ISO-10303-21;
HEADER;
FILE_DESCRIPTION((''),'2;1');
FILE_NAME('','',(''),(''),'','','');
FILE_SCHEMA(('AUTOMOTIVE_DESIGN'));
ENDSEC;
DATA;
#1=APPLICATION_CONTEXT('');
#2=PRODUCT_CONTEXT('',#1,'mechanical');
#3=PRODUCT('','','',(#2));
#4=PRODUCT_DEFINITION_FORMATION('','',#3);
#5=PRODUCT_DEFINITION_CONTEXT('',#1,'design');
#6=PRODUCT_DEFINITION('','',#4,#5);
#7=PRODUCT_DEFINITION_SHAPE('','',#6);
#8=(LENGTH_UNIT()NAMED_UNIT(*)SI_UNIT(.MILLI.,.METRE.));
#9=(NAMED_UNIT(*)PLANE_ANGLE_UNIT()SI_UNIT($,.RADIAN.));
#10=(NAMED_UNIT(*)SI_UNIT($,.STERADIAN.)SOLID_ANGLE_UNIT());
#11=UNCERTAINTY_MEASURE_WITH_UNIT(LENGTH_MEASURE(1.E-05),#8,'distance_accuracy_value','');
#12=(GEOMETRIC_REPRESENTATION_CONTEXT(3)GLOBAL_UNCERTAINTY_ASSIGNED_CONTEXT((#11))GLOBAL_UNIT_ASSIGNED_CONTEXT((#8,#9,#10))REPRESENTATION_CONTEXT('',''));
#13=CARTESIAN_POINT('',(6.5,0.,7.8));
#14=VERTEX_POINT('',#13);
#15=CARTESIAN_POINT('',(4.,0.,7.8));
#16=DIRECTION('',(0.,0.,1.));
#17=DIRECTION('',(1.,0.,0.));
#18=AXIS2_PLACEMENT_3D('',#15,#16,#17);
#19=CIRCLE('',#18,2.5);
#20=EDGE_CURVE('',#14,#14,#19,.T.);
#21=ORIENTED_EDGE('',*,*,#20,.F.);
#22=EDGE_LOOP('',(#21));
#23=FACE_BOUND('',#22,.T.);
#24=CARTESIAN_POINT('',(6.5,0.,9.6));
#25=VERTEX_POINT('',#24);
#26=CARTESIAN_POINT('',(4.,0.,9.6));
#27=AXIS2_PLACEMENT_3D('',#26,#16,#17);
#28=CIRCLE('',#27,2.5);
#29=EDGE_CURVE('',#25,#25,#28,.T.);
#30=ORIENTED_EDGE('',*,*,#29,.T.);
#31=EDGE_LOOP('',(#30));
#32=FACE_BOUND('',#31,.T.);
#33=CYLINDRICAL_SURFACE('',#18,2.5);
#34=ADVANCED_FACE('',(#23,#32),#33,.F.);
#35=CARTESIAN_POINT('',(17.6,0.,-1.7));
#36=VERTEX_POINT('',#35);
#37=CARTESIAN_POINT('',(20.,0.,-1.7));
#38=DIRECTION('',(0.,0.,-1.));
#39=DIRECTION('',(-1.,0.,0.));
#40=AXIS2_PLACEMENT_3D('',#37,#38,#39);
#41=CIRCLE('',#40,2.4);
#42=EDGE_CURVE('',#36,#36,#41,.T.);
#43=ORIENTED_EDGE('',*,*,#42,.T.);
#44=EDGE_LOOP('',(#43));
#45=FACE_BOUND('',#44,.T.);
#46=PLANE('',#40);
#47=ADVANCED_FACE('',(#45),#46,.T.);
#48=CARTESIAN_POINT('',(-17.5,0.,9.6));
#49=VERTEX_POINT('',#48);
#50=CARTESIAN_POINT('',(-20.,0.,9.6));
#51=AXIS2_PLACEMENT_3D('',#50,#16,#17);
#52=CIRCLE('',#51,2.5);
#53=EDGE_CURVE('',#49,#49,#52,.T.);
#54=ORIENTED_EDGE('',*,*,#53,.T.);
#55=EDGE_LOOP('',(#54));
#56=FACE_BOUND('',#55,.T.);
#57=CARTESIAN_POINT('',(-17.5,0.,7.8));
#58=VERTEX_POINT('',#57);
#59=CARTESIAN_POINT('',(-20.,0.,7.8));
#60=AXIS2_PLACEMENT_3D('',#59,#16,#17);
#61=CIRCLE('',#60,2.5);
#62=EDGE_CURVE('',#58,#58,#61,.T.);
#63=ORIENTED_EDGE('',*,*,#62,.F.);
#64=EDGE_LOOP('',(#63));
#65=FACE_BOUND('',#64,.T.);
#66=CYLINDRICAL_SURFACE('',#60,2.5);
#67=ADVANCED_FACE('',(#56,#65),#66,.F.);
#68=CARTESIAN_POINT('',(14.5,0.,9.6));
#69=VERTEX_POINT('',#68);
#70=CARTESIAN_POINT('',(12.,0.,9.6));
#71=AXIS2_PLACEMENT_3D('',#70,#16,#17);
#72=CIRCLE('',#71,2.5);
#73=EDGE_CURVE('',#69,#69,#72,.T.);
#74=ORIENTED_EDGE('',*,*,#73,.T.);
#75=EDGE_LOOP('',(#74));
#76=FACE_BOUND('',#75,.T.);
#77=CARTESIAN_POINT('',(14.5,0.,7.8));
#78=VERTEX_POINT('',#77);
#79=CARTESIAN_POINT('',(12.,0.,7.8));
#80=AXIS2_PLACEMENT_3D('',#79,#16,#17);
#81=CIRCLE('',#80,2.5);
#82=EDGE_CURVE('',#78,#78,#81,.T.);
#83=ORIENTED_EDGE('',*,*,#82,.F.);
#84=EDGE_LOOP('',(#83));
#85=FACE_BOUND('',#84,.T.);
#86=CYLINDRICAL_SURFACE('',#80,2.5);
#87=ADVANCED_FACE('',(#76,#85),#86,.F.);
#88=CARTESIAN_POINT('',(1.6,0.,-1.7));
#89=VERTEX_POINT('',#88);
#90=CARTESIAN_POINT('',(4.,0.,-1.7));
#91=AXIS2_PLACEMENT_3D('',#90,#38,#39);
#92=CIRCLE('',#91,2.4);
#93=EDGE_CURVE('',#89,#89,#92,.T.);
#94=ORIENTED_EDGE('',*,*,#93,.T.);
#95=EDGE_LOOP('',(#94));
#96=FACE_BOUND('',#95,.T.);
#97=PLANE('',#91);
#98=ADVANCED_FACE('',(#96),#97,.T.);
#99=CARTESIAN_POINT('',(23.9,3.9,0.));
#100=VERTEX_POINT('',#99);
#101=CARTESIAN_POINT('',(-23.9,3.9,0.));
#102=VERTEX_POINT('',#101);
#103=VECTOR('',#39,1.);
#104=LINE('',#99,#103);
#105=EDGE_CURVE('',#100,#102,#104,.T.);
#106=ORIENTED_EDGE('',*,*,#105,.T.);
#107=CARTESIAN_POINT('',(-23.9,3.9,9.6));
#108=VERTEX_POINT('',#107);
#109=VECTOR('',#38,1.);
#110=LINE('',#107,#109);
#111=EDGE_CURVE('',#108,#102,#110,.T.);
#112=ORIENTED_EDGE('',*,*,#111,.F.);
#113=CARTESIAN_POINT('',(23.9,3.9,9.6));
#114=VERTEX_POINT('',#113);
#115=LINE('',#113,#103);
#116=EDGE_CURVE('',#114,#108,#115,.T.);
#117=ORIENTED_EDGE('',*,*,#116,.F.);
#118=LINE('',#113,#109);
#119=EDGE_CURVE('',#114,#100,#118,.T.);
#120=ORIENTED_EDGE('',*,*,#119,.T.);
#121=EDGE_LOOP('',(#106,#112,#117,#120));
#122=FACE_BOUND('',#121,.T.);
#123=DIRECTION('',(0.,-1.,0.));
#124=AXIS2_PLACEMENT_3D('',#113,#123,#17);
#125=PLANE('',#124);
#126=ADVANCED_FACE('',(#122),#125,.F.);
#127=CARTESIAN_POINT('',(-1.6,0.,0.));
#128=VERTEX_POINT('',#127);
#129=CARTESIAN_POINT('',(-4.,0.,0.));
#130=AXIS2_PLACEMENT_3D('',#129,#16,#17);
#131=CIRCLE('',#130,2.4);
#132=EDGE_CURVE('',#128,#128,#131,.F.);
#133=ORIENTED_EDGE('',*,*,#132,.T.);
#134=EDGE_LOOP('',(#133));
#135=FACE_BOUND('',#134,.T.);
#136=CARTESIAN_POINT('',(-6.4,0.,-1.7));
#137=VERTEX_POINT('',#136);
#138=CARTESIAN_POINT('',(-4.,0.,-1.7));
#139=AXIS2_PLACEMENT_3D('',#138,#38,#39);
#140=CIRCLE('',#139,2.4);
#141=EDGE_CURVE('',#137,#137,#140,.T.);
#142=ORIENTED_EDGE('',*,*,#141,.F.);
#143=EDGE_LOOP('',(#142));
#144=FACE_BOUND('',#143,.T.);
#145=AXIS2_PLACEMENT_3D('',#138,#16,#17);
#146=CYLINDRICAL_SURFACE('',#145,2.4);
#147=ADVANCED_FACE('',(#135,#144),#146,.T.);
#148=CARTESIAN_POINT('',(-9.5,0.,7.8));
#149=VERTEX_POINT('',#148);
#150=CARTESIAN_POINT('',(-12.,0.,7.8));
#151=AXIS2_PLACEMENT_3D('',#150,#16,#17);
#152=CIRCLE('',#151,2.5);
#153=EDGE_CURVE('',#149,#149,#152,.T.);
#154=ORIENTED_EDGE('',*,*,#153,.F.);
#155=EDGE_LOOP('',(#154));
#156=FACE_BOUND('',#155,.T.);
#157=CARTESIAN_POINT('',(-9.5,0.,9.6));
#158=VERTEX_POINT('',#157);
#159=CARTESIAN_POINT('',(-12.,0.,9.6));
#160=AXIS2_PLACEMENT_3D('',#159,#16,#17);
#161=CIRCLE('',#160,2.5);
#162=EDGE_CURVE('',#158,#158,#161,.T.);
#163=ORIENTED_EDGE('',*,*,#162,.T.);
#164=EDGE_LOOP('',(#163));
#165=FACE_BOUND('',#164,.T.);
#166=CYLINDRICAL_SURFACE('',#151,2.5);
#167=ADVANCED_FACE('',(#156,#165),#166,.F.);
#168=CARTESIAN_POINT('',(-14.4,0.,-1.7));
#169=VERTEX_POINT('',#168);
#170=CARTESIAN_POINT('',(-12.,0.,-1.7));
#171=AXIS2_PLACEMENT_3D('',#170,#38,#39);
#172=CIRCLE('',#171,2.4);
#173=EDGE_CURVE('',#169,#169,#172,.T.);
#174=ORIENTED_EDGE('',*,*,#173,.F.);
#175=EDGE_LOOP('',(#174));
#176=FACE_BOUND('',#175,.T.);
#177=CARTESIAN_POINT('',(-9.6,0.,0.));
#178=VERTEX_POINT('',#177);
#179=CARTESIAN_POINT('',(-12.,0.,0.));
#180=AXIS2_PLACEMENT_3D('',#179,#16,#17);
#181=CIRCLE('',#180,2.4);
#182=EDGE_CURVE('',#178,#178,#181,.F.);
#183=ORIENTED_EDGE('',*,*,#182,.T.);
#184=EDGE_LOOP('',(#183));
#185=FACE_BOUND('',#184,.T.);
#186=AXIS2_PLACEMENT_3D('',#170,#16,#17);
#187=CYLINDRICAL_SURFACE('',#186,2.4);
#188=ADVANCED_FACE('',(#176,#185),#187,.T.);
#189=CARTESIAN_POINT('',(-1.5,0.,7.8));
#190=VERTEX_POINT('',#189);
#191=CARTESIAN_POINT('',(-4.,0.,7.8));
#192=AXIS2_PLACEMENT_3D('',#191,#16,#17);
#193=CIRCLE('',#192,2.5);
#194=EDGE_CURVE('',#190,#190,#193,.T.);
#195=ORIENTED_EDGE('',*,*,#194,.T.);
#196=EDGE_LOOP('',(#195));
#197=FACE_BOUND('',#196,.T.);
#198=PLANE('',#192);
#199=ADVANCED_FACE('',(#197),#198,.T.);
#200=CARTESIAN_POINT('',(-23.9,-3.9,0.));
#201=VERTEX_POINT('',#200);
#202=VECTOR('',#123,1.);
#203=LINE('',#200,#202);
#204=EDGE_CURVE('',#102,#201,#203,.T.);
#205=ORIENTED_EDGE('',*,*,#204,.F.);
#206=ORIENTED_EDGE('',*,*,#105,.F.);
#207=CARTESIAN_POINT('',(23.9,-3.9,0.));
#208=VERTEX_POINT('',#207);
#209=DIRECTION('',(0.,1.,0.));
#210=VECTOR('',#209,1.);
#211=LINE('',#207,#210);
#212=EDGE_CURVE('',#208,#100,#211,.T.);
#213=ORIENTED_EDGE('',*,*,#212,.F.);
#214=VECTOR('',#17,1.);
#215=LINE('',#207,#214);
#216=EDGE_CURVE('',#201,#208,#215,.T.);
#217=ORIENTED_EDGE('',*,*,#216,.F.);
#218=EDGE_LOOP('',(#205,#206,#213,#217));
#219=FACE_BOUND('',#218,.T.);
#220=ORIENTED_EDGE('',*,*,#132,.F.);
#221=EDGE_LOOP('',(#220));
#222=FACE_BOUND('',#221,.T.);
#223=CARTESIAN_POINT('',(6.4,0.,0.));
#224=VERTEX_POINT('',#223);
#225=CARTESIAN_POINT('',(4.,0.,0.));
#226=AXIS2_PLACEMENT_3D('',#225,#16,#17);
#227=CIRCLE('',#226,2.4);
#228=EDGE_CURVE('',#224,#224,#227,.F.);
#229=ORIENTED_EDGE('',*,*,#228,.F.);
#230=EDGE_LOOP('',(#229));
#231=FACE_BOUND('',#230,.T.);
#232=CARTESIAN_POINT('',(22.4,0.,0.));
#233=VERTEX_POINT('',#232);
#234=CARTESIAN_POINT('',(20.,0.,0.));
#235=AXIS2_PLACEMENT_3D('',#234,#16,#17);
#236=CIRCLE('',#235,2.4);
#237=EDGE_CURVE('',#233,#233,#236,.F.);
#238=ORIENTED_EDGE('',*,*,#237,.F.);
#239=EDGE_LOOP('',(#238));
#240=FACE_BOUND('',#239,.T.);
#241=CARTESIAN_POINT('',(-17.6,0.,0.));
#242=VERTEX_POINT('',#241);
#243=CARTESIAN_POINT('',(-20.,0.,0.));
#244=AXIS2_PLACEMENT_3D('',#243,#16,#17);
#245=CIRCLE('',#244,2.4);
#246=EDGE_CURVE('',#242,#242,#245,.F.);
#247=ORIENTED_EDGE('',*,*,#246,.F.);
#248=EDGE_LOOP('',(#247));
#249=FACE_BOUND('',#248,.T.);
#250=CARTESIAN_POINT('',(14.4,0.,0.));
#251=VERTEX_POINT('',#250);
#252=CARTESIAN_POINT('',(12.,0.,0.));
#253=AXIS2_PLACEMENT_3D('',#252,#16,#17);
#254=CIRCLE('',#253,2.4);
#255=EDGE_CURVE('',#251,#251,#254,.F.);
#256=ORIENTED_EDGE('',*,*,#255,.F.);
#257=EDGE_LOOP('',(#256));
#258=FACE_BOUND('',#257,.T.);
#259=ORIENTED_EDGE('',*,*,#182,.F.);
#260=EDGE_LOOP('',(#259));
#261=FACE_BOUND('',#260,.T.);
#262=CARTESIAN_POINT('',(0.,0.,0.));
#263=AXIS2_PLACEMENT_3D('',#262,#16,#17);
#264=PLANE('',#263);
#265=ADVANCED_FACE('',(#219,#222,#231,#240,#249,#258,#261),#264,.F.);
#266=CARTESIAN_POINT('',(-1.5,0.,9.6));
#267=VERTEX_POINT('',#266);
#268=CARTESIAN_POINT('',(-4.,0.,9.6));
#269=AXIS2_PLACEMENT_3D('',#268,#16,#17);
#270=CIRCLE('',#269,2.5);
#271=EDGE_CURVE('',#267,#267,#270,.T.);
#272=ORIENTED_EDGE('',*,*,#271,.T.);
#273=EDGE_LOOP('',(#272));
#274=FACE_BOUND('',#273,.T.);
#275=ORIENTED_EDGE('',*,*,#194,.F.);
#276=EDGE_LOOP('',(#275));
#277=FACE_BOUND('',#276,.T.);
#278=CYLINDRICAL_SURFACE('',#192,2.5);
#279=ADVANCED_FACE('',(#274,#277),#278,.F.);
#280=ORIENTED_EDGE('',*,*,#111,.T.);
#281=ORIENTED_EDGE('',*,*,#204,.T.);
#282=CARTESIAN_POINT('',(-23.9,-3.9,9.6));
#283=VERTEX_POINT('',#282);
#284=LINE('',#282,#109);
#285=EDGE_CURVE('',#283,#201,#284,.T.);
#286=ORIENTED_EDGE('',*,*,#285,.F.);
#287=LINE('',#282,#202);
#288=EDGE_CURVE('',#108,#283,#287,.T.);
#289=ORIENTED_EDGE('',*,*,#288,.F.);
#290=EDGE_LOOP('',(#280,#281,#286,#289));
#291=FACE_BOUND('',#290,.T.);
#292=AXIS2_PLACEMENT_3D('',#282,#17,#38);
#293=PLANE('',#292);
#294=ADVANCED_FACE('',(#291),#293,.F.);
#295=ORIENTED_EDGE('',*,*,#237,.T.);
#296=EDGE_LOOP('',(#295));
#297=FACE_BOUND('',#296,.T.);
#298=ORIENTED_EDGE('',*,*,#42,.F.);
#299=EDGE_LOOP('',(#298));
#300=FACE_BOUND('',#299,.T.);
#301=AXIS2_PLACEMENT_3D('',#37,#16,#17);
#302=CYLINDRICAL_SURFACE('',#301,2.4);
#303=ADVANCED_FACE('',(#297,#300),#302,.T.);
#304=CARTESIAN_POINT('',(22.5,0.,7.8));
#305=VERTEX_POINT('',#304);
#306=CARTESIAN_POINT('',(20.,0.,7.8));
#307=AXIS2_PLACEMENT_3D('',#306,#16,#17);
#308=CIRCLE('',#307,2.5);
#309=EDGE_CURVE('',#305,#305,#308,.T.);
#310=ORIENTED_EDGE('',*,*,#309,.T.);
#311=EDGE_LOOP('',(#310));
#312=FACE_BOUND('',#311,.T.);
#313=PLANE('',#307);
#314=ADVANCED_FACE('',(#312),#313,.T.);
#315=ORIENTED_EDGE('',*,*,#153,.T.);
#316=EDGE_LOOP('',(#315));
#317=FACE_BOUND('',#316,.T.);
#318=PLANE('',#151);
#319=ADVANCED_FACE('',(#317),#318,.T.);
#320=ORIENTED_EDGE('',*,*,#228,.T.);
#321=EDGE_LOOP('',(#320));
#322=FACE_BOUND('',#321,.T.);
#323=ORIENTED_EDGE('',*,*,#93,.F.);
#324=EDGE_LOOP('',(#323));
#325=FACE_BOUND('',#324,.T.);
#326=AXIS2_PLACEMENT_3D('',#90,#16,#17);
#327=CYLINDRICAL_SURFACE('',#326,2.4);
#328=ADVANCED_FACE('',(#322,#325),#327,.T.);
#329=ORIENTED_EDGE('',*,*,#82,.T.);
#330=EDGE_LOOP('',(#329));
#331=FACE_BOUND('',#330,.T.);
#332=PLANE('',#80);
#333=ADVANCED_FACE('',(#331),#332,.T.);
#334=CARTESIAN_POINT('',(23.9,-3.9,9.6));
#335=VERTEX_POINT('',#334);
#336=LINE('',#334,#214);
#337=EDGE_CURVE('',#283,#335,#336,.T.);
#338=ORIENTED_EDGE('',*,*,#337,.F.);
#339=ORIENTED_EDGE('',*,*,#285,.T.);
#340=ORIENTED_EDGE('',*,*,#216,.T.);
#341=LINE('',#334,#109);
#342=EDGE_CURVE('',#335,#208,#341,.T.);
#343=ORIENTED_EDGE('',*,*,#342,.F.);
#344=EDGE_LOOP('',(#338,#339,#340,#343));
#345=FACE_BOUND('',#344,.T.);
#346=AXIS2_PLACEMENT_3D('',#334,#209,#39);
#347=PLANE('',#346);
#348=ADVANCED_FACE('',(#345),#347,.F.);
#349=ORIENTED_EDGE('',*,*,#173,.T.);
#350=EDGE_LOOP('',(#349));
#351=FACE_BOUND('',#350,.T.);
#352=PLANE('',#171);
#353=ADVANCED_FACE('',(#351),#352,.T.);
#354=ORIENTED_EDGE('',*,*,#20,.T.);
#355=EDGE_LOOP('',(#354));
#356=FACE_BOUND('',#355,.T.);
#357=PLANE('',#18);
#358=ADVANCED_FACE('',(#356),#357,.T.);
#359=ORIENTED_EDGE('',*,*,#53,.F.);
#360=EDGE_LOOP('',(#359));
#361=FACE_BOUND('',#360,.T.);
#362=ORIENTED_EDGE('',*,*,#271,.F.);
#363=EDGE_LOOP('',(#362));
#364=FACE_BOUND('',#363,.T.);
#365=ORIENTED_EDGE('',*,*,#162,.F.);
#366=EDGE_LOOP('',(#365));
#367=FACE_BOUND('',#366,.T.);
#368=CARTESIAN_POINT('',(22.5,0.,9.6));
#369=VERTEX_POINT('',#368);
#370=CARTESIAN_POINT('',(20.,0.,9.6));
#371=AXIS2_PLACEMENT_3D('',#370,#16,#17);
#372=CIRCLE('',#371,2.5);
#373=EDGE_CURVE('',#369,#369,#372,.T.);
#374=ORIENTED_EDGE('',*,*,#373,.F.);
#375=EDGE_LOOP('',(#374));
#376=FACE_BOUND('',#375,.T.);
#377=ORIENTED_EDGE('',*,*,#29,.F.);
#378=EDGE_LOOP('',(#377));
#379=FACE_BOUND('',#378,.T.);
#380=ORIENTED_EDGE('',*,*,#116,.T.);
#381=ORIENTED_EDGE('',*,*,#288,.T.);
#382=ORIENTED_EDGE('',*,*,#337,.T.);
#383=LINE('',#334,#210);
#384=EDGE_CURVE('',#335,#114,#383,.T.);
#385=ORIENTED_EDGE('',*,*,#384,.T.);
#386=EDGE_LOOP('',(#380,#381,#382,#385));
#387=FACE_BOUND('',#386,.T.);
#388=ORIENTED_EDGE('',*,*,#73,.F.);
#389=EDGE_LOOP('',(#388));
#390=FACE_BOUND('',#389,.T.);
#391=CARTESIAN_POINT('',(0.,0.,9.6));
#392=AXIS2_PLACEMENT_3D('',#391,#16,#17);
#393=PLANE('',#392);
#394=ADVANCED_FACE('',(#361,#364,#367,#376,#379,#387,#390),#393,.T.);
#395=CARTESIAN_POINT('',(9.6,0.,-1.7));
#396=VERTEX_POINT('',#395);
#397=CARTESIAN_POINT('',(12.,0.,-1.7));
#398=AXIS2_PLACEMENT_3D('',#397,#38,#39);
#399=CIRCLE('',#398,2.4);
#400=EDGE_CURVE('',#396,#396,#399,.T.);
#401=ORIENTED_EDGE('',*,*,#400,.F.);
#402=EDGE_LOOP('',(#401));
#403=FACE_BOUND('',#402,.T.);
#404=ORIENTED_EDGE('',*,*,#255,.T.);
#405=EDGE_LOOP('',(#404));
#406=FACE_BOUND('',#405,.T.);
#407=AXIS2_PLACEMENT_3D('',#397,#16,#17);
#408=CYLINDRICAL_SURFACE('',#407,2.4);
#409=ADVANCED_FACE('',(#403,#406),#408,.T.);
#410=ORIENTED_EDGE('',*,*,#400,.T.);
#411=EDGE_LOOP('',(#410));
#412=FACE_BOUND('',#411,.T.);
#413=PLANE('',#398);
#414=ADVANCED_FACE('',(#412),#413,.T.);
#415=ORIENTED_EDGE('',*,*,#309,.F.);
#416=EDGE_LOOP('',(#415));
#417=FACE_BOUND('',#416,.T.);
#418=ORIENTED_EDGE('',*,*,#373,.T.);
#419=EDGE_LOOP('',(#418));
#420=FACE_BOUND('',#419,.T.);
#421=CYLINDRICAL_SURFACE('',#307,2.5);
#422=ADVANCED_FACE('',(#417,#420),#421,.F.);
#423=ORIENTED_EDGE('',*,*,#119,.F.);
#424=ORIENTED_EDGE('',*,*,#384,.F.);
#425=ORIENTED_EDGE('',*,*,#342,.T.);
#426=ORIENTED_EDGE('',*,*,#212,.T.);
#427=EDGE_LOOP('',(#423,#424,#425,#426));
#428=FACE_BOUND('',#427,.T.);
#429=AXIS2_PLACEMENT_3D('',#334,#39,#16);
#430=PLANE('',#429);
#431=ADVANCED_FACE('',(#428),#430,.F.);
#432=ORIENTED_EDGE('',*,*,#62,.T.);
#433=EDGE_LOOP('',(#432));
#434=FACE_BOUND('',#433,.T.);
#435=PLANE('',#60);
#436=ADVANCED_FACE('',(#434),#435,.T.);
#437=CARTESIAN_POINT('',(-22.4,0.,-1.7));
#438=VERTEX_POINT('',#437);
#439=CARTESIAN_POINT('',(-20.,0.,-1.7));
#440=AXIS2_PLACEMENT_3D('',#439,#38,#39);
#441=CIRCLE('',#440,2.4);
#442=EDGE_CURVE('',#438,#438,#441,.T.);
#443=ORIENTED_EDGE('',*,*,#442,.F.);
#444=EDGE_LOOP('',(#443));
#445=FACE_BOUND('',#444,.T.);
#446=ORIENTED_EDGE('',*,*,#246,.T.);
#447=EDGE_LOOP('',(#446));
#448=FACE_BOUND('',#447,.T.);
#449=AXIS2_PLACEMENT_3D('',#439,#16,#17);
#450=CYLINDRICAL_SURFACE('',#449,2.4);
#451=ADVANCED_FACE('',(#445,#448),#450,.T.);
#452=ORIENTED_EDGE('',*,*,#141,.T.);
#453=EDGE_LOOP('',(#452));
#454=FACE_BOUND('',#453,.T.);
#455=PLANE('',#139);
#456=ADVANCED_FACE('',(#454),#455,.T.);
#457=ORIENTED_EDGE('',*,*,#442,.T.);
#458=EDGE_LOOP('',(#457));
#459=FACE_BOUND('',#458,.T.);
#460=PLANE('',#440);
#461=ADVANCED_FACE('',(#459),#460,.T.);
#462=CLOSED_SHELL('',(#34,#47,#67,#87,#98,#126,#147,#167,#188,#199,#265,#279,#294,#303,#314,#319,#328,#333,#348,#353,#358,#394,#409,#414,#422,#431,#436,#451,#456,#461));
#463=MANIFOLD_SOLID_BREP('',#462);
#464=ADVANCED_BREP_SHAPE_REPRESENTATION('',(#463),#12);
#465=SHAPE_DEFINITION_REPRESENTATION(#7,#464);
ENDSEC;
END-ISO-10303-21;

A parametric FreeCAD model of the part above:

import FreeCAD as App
import Part
import Sketcher
from FreeCAD import Vector
Q = App.Units.Quantity

doc = App.newDocument("Part")
body = doc.addObject("PartDesign::Body", "Body")

# Sketch on XY plane
sketch1 = body.newObject("Sketcher::SketchObject", "Sketch")
sketch1.AttachmentSupport = (doc.getObject("XY_Plane"), [""])
sketch1.MapMode = "FlatFace"
sketch1.addGeometry(Part.LineSegment(Vector(-24, 4, 0), Vector(-24, -4, 0)), False)
sketch1.addGeometry(Part.LineSegment(Vector(-24, -4, 0), Vector(24, -4, 0)), False)
sketch1.addGeometry(Part.LineSegment(Vector(24, -4, 0), Vector(24, 4, 0)), False)
sketch1.addGeometry(Part.LineSegment(Vector(24, 4, 0), Vector(-24, 4, 0)), False)
sketch1.addConstraint(Sketcher.Constraint("Coincident", 0, 2, 1, 1))
sketch1.addConstraint(Sketcher.Constraint("Coincident", 1, 2, 2, 1))
sketch1.addConstraint(Sketcher.Constraint("Coincident", 2, 2, 3, 1))
sketch1.addConstraint(Sketcher.Constraint("Coincident", 3, 2, 0, 1))
sketch1.addConstraint(Sketcher.Constraint("Vertical", 0))
sketch1.addConstraint(Sketcher.Constraint("Horizontal", 1))
sketch1.addConstraint(Sketcher.Constraint("Vertical", 2))
sketch1.addConstraint(Sketcher.Constraint("Horizontal", 3))
sketch1.addConstraint(Sketcher.Constraint("Symmetric", 0, 2, 2, 2, -1, 1))
sketch1.addConstraint(Sketcher.Constraint("DistanceX", 1, 1, 1, 2, Q("47.8 mm")))
sketch1.addConstraint(Sketcher.Constraint("DistanceY", 0, 2, 0, 1, Q("7.8 mm")))
pad1 = body.newObject("PartDesign::Pad", "Pad")
pad1.Profile = sketch1
pad1.Length = 9.6

# Sketch on XY plane
sketch2 = body.newObject("Sketcher::SketchObject", "Sketch001")
sketch2.AttachmentSupport = (doc.getObject("XY_Plane"), [""])
sketch2.MapMode = "FlatFace"
sketch2.addGeometry(Part.Circle(Vector(20, 0, 0), Vector(0, 0, 1), 2.4), False)
sketch2.addGeometry(Part.Circle(Vector(12, 0, 0), Vector(0, 0, 1), 2.4), False)
sketch2.addGeometry(Part.Circle(Vector(4, 0, 0), Vector(0, 0, 1), 2.4), False)
sketch2.addGeometry(Part.Circle(Vector(-4, 0, 0), Vector(0, 0, 1), 2.4), False)
sketch2.addGeometry(Part.Circle(Vector(-12, 0, 0), Vector(0, 0, 1), 2.4), False)
sketch2.addGeometry(Part.Circle(Vector(-20, 0, 0), Vector(0, 0, 1), 2.4), False)
sketch2.addConstraint(Sketcher.Constraint("Equal", 0, 1))
sketch2.addConstraint(Sketcher.Constraint("Equal", 1, 2))
sketch2.addConstraint(Sketcher.Constraint("Equal", 2, 3))
sketch2.addConstraint(Sketcher.Constraint("Equal", 3, 4))
sketch2.addConstraint(Sketcher.Constraint("Equal", 4, 5))
sketch2.addConstraint(Sketcher.Constraint("Symmetric", 2, 3, 3, 3, -1, 1))
sketch2.addConstraint(Sketcher.Constraint("Symmetric", 1, 3, 4, 3, -1, 1))
sketch2.addConstraint(Sketcher.Constraint("Symmetric", 0, 3, 5, 3, -1, 1))
sketch2.addConstraint(Sketcher.Constraint("PointOnObject", 0, 3, -1))
sketch2.addConstraint(Sketcher.Constraint("PointOnObject", 1, 3, -1))
sketch2.addConstraint(Sketcher.Constraint("PointOnObject", 2, 3, -1))
sketch2.addConstraint(Sketcher.Constraint("Diameter", 0, Q("4.8 mm")))
sketch2.addConstraint(Sketcher.Constraint("DistanceX", -1, 1, 0, 3, Q("20 mm")))
sketch2.addConstraint(Sketcher.Constraint("DistanceX", -1, 1, 1, 3, Q("12 mm")))
sketch2.addConstraint(Sketcher.Constraint("DistanceX", -1, 1, 2, 3, Q("4 mm")))
pad2 = body.newObject("PartDesign::Pad", "Pad001")
pad2.Profile = sketch2
pad2.Length = 1.7
pad2.Reversed = True

# Sketch on XY plane
sketch3 = body.newObject("Sketcher::SketchObject", "Sketch002")
sketch3.AttachmentSupport = (doc.getObject("XY_Plane"), [""])
sketch3.MapMode = "FlatFace"
sketch3.AttachmentOffset = App.Placement(Vector(0, 0, 9.6), App.Rotation())
sketch3.addGeometry(Part.Circle(Vector(-20, 0, 0), Vector(0, 0, 1), 2.5), False)
sketch3.addGeometry(Part.Circle(Vector(-12, 0, 0), Vector(0, 0, 1), 2.5), False)
sketch3.addGeometry(Part.Circle(Vector(-4, 0, 0), Vector(0, 0, 1), 2.5), False)
sketch3.addGeometry(Part.Circle(Vector(4, 0, 0), Vector(0, 0, 1), 2.5), False)
sketch3.addGeometry(Part.Circle(Vector(12, 0, 0), Vector(0, 0, 1), 2.5), False)
sketch3.addGeometry(Part.Circle(Vector(20, 0, 0), Vector(0, 0, 1), 2.5), False)
sketch3.addConstraint(Sketcher.Constraint("Equal", 0, 1))
sketch3.addConstraint(Sketcher.Constraint("Equal", 1, 2))
sketch3.addConstraint(Sketcher.Constraint("Equal", 2, 3))
sketch3.addConstraint(Sketcher.Constraint("Equal", 3, 4))
sketch3.addConstraint(Sketcher.Constraint("Equal", 4, 5))
sketch3.addConstraint(Sketcher.Constraint("Symmetric", 2, 3, 3, 3, -1, 1))
sketch3.addConstraint(Sketcher.Constraint("Symmetric", 1, 3, 4, 3, -1, 1))
sketch3.addConstraint(Sketcher.Constraint("Symmetric", 0, 3, 5, 3, -1, 1))
sketch3.addConstraint(Sketcher.Constraint("PointOnObject", 0, 3, -1))
sketch3.addConstraint(Sketcher.Constraint("PointOnObject", 1, 3, -1))
sketch3.addConstraint(Sketcher.Constraint("PointOnObject", 2, 3, -1))
sketch3.addConstraint(Sketcher.Constraint("Diameter", 0, Q("5 mm")))
sketch3.addConstraint(Sketcher.Constraint("DistanceX", 0, 3, -1, 1, Q("20 mm")))
sketch3.addConstraint(Sketcher.Constraint("DistanceX", 1, 3, -1, 1, Q("12 mm")))
sketch3.addConstraint(Sketcher.Constraint("DistanceX", 2, 3, -1, 1, Q("4 mm")))
pocket1 = body.newObject("PartDesign::Pocket", "Pocket")
pocket1.Profile = sketch3
pocket1.Length = 1.8

doc.recompute()
